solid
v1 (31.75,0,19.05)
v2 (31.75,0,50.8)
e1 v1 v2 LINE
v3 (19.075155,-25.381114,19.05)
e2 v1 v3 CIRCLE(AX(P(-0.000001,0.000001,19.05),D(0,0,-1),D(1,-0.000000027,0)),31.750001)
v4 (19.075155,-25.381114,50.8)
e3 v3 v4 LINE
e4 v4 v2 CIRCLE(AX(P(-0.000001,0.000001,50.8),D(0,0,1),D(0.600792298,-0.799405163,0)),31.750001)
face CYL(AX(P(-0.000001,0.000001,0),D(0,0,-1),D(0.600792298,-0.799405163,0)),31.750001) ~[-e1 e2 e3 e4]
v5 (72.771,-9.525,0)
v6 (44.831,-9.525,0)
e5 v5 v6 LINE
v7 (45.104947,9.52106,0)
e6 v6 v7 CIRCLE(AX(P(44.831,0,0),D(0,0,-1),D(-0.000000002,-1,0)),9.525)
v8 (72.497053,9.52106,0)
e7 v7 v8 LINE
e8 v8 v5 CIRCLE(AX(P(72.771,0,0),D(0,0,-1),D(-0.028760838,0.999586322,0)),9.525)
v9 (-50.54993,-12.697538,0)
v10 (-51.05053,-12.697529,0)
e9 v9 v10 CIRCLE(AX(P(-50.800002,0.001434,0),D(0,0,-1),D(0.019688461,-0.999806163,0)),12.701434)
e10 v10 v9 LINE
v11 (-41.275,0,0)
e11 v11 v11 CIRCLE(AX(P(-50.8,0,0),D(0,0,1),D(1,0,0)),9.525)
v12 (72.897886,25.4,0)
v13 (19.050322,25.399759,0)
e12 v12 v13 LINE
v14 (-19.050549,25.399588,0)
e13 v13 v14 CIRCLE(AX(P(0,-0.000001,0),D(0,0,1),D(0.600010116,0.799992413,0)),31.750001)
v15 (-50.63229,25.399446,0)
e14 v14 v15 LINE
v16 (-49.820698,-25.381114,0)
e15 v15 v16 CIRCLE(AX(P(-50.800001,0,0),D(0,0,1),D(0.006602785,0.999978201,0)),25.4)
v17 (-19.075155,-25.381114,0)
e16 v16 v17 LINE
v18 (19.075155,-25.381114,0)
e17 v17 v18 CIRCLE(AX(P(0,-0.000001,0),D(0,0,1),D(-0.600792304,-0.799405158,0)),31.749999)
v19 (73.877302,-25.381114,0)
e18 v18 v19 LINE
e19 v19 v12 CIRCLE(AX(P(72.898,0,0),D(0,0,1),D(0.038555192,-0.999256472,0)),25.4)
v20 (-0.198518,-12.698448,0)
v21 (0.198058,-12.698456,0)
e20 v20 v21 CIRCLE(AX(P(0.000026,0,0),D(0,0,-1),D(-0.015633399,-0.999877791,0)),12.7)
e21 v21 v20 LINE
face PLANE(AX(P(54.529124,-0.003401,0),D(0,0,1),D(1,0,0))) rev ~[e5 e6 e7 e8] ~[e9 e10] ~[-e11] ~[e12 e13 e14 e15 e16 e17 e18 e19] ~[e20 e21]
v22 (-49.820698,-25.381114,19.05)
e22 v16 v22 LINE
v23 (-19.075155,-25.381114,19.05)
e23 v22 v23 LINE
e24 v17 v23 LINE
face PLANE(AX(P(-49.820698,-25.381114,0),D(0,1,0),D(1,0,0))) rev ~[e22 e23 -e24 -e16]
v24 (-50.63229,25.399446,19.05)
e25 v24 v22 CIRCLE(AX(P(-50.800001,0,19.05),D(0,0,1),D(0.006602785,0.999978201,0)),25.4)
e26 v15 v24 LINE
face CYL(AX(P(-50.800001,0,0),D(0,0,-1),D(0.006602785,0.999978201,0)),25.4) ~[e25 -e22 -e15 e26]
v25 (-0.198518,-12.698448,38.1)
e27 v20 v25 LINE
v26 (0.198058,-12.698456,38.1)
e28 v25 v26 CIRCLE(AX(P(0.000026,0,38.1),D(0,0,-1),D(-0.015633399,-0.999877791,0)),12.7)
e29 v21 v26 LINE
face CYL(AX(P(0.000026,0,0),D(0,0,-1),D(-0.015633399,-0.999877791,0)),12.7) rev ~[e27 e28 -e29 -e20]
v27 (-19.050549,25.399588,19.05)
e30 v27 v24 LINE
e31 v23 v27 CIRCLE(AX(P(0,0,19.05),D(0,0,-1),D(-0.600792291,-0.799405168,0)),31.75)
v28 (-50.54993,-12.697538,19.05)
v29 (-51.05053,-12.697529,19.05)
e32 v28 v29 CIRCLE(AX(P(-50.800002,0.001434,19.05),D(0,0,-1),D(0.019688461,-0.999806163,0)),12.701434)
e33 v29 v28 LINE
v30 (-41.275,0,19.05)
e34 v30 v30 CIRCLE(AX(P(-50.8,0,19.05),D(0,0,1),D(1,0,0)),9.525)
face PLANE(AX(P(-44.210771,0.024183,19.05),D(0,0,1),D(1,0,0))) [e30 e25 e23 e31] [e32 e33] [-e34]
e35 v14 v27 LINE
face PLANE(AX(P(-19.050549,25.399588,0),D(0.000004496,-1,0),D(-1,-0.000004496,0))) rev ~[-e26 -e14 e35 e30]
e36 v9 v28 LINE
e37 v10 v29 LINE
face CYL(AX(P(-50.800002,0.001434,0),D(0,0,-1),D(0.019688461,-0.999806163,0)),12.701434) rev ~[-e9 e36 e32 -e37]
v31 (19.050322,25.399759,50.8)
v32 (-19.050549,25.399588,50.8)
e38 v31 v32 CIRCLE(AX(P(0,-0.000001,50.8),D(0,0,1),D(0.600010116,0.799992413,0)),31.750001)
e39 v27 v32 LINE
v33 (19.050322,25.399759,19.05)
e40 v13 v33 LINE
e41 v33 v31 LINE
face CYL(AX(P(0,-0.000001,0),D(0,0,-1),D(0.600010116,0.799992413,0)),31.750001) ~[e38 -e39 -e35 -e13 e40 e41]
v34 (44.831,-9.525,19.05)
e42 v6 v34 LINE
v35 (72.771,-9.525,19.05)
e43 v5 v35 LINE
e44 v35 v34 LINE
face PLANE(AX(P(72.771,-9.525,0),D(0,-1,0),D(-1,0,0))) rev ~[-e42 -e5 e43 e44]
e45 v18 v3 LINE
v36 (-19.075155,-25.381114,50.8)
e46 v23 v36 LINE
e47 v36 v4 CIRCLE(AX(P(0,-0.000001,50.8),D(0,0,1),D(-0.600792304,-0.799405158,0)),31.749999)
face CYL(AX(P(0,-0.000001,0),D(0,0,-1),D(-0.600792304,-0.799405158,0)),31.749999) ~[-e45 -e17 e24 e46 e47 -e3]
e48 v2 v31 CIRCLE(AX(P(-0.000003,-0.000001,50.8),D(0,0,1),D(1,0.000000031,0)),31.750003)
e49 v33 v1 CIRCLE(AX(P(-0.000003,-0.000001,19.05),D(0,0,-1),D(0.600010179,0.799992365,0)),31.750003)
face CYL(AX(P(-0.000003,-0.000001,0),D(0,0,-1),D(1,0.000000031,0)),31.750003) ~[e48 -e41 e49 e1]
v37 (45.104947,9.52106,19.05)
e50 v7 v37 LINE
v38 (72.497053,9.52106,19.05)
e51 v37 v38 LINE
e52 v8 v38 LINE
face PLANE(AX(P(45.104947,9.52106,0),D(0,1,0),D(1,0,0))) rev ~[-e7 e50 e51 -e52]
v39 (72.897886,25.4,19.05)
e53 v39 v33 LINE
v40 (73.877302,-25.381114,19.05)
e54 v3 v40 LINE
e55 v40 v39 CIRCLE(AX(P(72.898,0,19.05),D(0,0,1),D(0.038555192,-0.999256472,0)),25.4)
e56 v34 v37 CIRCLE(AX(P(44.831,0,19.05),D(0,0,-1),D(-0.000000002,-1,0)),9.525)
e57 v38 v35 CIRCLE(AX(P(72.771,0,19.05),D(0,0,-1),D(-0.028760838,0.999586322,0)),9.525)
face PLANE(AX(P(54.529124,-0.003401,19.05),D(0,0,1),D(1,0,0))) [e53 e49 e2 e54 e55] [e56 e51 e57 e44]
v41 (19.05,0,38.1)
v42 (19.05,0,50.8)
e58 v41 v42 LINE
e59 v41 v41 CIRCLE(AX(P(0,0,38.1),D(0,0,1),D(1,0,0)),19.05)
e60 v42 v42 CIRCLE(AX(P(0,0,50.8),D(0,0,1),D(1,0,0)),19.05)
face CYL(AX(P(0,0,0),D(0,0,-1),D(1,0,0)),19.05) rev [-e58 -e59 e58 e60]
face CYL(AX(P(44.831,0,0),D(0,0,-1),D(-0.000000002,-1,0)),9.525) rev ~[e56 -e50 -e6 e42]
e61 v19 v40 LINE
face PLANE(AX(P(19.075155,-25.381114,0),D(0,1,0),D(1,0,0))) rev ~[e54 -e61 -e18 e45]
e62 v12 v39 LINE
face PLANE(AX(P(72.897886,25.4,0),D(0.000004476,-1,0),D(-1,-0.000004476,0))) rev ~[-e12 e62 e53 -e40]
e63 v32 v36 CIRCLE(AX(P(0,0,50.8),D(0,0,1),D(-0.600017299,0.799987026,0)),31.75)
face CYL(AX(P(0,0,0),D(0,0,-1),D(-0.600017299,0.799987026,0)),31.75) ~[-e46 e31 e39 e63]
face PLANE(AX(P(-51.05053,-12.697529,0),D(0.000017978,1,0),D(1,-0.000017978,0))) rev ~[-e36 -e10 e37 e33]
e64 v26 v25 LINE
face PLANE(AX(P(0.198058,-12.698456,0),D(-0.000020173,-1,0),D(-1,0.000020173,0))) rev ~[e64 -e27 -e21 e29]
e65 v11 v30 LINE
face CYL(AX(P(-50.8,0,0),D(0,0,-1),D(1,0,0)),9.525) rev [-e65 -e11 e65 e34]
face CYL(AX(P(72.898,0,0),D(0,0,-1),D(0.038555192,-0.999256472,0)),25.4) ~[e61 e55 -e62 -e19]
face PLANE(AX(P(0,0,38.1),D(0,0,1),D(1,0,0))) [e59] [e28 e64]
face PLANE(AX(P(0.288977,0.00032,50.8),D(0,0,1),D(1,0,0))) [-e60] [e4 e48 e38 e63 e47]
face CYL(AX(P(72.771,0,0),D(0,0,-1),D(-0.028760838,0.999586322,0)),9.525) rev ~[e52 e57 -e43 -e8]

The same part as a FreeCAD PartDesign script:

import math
import FreeCAD as App
import Part
import Sketcher
from FreeCAD import Vector
Q = App.Units.Quantity

doc = App.newDocument("Part")
body = doc.addObject("PartDesign::Body", "Body")

sketch1 = body.newObject("Sketcher::SketchObject", "Sketch")
sketch1.AttachmentSupport = (doc.getObject("XY_Plane"), [""])
sketch1.MapMode = "FlatFace"
sketch1.addGeometry(Part.ArcOfCircle(Part.Circle(Vector(0, 0, 0), Vector(0, 0, 1), 32), math.radians(-53), math.radians(0)), False)
sketch1.addGeometry(Part.ArcOfCircle(Part.Circle(Vector(0, 0, 0), Vector(0, 0, 1), 32), math.radians(0), math.radians(53)), False)
sketch1.addGeometry(Part.ArcOfCircle(Part.Circle(Vector(0, 0, 0), Vector(0, 0, 1), 32), math.radians(53), math.radians(127)), False)
sketch1.addGeometry(Part.ArcOfCircle(Part.Circle(Vector(0, 0, 0), Vector(0, 0, 1), 32), math.radians(127), math.radians(233)), False)
sketch1.addGeometry(Part.ArcOfCircle(Part.Circle(Vector(0, 0, 0), Vector(0, 0, 1), 32), math.radians(-127), math.radians(-53)), False)
sketch1.addGeometry(Part.Circle(Vector(0, 0, 0), Vector(0, 0, 1), 19), False)
sketch1.addConstraint(Sketcher.Constraint("Tangent", 0, 2, 1, 1))
sketch1.addConstraint(Sketcher.Constraint("Tangent", 1, 2, 2, 1))
sketch1.addConstraint(Sketcher.Constraint("Tangent", 2, 2, 3, 1))
sketch1.addConstraint(Sketcher.Constraint("Tangent", 3, 2, 4, 1))
sketch1.addConstraint(Sketcher.Constraint("Tangent", 4, 2, 0, 1))
sketch1.addConstraint(Sketcher.Constraint("Coincident", 0, 3, -1, 1))
sketch1.addConstraint(Sketcher.Constraint("Coincident", 2, 3, -1, 1))
sketch1.addConstraint(Sketcher.Constraint("Coincident", 5, 3, -1, 1))
sketch1.addConstraint(Sketcher.Constraint("PointOnObject", 0, 2, -1))
sketch1.addConstraint(Sketcher.Constraint("Horizontal", 3, 2, 4, 2))
sketch1.addConstraint(Sketcher.Constraint("Diameter", 5, Q("1.5 in")))
sketch1.addConstraint(Sketcher.Constraint("Radius", 0, Q("1.25 in")))
sketch1.addConstraint(Sketcher.Constraint("DistanceY", -1, 1, 1, 2, 25.399759))
sketch1.addConstraint(Sketcher.Constraint("DistanceX", 2, 2, -1, 1, 19.050549))
sketch1.addConstraint(Sketcher.Constraint("DistanceX", 3, 2, -1, 1, 19.075155))
pad1 = body.newObject("PartDesign::Pad", "Pad")
pad1.Profile = sketch1
pad1.Length = Q("2 in")

sketch2 = body.newObject("Sketcher::SketchObject", "Sketch001")
sketch2.AttachmentSupport = (doc.getObject("XY_Plane"), [""])
sketch2.MapMode = "FlatFace"
sketch2.addGeometry(Part.Circle(Vector(0, 0, 0), Vector(0, 0, 1), 19.05), False)
sketch2.addGeometry(Part.LineSegment(Vector(0.2, -12.7, 0), Vector(-0.2, -12.7, 0)), False)
sketch2.addGeometry(Part.ArcOfCircle(Part.Circle(Vector(0, 0, 0), Vector(0, 0, 1), 12.7), math.radians(-89), math.radians(269)), False)
sketch2.addConstraint(Sketcher.Constraint("Coincident", 1, 1, 2, 1))
sketch2.addConstraint(Sketcher.Constraint("Coincident", 2, 2, 1, 2))
sketch2.addConstraint(Sketcher.Constraint("Coincident", 0, 3, -1, 1))
sketch2.addConstraint(Sketcher.Constraint("PointOnObject", 2, 3, -1))
sketch2.addConstraint(Sketcher.Constraint("Diameter", 0, Q("1.5 in")))
sketch2.addConstraint(Sketcher.Constraint("Radius", 2, Q("0.5 in")))
sketch2.addConstraint(Sketcher.Constraint("DistanceX", 2, 2, -1, 1, 0.198518))
sketch2.addConstraint(Sketcher.Constraint("DistanceY", 2, 2, -1, 1, 12.698448))
sketch2.addConstraint(Sketcher.Constraint("DistanceX", 2, 3, 1, 1, 0.198032))
pad2 = body.newObject("PartDesign::Pad", "Pad001")
pad2.Profile = sketch2
pad2.Length = Q("1.5 in")

sketch3 = body.newObject("Sketcher::SketchObject", "Sketch002")
sketch3.AttachmentSupport = (doc.getObject("XY_Plane"), [""])
sketch3.MapMode = "FlatFace"
sketch3.addGeometry(Part.ArcOfCircle(Part.Circle(Vector(0, 0, 0), Vector(0, 0, 1), 31.8), math.radians(0), math.radians(53)), False)
sketch3.addGeometry(Part.ArcOfCircle(Part.Circle(Vector(0, 0, 0), Vector(0, 0, 1), 31.8), math.radians(-53), math.radians(0)), False)
sketch3.addGeometry(Part.LineSegment(Vector(19.1, -25.4, 0), Vector(73.9, -25.4, 0)), False)
sketch3.addGeometry(Part.ArcOfCircle(Part.Circle(Vector(72.9, 0, 0), Vector(0, 0, 1), 25.4), math.radians(-88), math.radians(90)), False)
sketch3.addGeometry(Part.LineSegment(Vector(72.9, 25.4, 0), Vector(19.1, 25.4, 0)), False)
sketch3.addGeometry(Part.LineSegment(Vector(72.8, -9.5, 0), Vector(44.8, -9.5, 0)), False)
sketch3.addGeometry(Part.ArcOfCircle(Part.Circle(Vector(44.8, 0, 0), Vector(0, 0, 1), 9.5), math.radians(88), math.radians(270)), False)
sketch3.addGeometry(Part.LineSegment(Vector(45.1, 9.5, 0), Vector(72.5, 9.5, 0)), False)
sketch3.addGeometry(Part.ArcOfCircle(Part.Circle(Vector(72.8, 0, 0), Vector(0, 0, 1), 9.5), math.radians(-90), math.radians(92)), False)
sketch3.addGeometry(Part.ArcOfCircle(Part.Circle(Vector(0, 0, 0), Vector(0, 0, 1), 31.7), math.radians(127), math.radians(233)), False)
sketch3.addGeometry(Part.LineSegment(Vector(-19.1, 25.4, 0), Vector(-50.6, 25.4, 0)), False)
sketch3.addGeometry(Part.ArcOfCircle(Part.Circle(Vector(-50.8, 0, 0), Vector(0, 0, 1), 25.4), math.radians(90), math.radians(272)), False)
sketch3.addGeometry(Part.LineSegment(Vector(-49.8, -25.4, 0), Vector(-19.1, -25.4, 0)), False)
sketch3.addGeometry(Part.LineSegment(Vector(-51.1, -12.7, 0), Vector(-50.5, -12.7, 0)), False)
sketch3.addGeometry(Part.ArcOfCircle(Part.Circle(Vector(-50.8, 0, 0), Vector(0, 0, 1), 12.7), math.radians(-91.13), math.radians(-88.87)), False)
sketch3.addGeometry(Part.Circle(Vector(-50.8, 0, 0), Vector(0, 0, 1), 9.5), False)
sketch3.addConstraint(Sketcher.Constraint("Tangent", 0, 1, 1, 2))
sketch3.addConstraint(Sketcher.Constraint("Coincident", 1, 1, 2, 1))
sketch3.addConstraint(Sketcher.Constraint("Coincident", 2, 2, 3, 1))
sketch3.addConstraint(Sketcher.Constraint("Tangent", 3, 2, 4, 1))
sketch3.addConstraint(Sketcher.Constraint("Coincident", 4, 2, 0, 2))
sketch3.addConstraint(Sketcher.Constraint("Tangent", 5, 2, 6, 2))
sketch3.addConstraint(Sketcher.Constraint("Coincident", 6, 1, 7, 1))
sketch3.addConstraint(Sketcher.Constraint("Coincident", 7, 2, 8, 2))
sketch3.addConstraint(Sketcher.Constraint("Tangent", 8, 1, 5, 1))
sketch3.addConstraint(Sketcher.Constraint("Coincident", 9, 1, 10, 1))
sketch3.addConstraint(Sketcher.Constraint("Coincident", 10, 2, 11, 1))
sketch3.addConstraint(Sketcher.Constraint("Coincident", 11, 2, 12, 1))
sketch3.addConstraint(Sketcher.Constraint("Coincident", 12, 2, 9, 2))
sketch3.addConstraint(Sketcher.Constraint("Coincident", 13, 1, 14, 1))
sketch3.addConstraint(Sketcher.Constraint("Coincident", 14, 2, 13, 2))
sketch3.addConstraint(Sketcher.Constraint("Horizontal", 2))
sketch3.addConstraint(Sketcher.Constraint("Horizontal", 5))
sketch3.addConstraint(Sketcher.Constraint("Horizontal", 7))
sketch3.addConstraint(Sketcher.Constraint("Horizontal", 12))
sketch3.addConstraint(Sketcher.Constraint("Coincident", 0, 3, -1, 1))
sketch3.addConstraint(Sketcher.Constraint("Coincident", 9, 3, -1, 1))
sketch3.addConstraint(Sketcher.Constraint("Coincident", 15, 3, 11, 3))
sketch3.addConstraint(Sketcher.Constraint("Equal", 0, 1))
sketch3.addConstraint(Sketcher.Constraint("Equal", 6, 8))
sketch3.addConstraint(Sketcher.Constraint("Equal", 1, 9))
sketch3.addConstraint(Sketcher.Constraint("Equal", 3, 11))
sketch3.addConstraint(Sketcher.Constraint("Equal", 8, 15))
sketch3.addConstraint(Sketcher.Constraint("PointOnObject", 3, 3, -1))
sketch3.addConstraint(Sketcher.Constraint("PointOnObject", 6, 3, -1))
sketch3.addConstraint(Sketcher.Constraint("PointOnObject", 11, 3, -1))
sketch3.addConstraint(Sketcher.Constraint("PointOnObject", 0, 1, -1))
sketch3.addConstraint(Sketcher.Constraint("Parallel", 4, 10))
sketch3.addConstraint(Sketcher.Constraint("Horizontal", 2, 2, 11, 2))
sketch3.addConstraint(Sketcher.Constraint("Vertical", 11, 3, 14, 3))
sketch3.addConstraint(Sketcher.Constraint("Radius", 3, Q("1 in")))
sketch3.addConstraint(Sketcher.Constraint("Diameter", 15, Q("0.75 in")))
sketch3.addConstraint(Sketcher.Constraint("Radius", 0, Q("1.2500001 in")))
sketch3.addConstraint(Sketcher.Constraint("DistanceX", 5, 2, 5, 1, Q("1.1 in")))
sketch3.addConstraint(Sketcher.Constraint("DistanceX", 11, 3, -1, 1, Q("2 in")))
sketch3.addConstraint(Sketcher.Constraint("DistanceX", -1, 1, 3, 3, Q("2.87 in")))
sketch3.addConstraint(Sketcher.Constraint("DistanceX", -1, 1, 6, 3, Q("1.765 in")))
sketch3.addConstraint(Sketcher.Constraint("Radius", 14, 12.701434))
sketch3.addConstraint(Sketcher.Constraint("Distance", 13, 0.5006))
sketch3.addConstraint(Sketcher.Constraint("DistanceX", -1, 1, 2, 2, 73.877302))
sketch3.addConstraint(Sketcher.Constraint("Distance", 10, 31.581741))
sketch3.addConstraint(Sketcher.Constraint("DistanceX", 7, 1, 7, 2, 27.392106))
sketch3.addConstraint(Sketcher.Constraint("DistanceY", -1, 1, 4, 2, 25.399759))
sketch3.addConstraint(Sketcher.Constraint("DistanceX", 13, 1, -1, 1, 51.05053))
sketch3.addConstraint(Sketcher.Constraint("DistanceY", 13, 1, -1, 1, 12.697529))
pad3 = body.newObject("PartDesign::Pad", "Pad002")
pad3.Profile = sketch3
pad3.Length = Q("0.75 in")

doc.recompute()
